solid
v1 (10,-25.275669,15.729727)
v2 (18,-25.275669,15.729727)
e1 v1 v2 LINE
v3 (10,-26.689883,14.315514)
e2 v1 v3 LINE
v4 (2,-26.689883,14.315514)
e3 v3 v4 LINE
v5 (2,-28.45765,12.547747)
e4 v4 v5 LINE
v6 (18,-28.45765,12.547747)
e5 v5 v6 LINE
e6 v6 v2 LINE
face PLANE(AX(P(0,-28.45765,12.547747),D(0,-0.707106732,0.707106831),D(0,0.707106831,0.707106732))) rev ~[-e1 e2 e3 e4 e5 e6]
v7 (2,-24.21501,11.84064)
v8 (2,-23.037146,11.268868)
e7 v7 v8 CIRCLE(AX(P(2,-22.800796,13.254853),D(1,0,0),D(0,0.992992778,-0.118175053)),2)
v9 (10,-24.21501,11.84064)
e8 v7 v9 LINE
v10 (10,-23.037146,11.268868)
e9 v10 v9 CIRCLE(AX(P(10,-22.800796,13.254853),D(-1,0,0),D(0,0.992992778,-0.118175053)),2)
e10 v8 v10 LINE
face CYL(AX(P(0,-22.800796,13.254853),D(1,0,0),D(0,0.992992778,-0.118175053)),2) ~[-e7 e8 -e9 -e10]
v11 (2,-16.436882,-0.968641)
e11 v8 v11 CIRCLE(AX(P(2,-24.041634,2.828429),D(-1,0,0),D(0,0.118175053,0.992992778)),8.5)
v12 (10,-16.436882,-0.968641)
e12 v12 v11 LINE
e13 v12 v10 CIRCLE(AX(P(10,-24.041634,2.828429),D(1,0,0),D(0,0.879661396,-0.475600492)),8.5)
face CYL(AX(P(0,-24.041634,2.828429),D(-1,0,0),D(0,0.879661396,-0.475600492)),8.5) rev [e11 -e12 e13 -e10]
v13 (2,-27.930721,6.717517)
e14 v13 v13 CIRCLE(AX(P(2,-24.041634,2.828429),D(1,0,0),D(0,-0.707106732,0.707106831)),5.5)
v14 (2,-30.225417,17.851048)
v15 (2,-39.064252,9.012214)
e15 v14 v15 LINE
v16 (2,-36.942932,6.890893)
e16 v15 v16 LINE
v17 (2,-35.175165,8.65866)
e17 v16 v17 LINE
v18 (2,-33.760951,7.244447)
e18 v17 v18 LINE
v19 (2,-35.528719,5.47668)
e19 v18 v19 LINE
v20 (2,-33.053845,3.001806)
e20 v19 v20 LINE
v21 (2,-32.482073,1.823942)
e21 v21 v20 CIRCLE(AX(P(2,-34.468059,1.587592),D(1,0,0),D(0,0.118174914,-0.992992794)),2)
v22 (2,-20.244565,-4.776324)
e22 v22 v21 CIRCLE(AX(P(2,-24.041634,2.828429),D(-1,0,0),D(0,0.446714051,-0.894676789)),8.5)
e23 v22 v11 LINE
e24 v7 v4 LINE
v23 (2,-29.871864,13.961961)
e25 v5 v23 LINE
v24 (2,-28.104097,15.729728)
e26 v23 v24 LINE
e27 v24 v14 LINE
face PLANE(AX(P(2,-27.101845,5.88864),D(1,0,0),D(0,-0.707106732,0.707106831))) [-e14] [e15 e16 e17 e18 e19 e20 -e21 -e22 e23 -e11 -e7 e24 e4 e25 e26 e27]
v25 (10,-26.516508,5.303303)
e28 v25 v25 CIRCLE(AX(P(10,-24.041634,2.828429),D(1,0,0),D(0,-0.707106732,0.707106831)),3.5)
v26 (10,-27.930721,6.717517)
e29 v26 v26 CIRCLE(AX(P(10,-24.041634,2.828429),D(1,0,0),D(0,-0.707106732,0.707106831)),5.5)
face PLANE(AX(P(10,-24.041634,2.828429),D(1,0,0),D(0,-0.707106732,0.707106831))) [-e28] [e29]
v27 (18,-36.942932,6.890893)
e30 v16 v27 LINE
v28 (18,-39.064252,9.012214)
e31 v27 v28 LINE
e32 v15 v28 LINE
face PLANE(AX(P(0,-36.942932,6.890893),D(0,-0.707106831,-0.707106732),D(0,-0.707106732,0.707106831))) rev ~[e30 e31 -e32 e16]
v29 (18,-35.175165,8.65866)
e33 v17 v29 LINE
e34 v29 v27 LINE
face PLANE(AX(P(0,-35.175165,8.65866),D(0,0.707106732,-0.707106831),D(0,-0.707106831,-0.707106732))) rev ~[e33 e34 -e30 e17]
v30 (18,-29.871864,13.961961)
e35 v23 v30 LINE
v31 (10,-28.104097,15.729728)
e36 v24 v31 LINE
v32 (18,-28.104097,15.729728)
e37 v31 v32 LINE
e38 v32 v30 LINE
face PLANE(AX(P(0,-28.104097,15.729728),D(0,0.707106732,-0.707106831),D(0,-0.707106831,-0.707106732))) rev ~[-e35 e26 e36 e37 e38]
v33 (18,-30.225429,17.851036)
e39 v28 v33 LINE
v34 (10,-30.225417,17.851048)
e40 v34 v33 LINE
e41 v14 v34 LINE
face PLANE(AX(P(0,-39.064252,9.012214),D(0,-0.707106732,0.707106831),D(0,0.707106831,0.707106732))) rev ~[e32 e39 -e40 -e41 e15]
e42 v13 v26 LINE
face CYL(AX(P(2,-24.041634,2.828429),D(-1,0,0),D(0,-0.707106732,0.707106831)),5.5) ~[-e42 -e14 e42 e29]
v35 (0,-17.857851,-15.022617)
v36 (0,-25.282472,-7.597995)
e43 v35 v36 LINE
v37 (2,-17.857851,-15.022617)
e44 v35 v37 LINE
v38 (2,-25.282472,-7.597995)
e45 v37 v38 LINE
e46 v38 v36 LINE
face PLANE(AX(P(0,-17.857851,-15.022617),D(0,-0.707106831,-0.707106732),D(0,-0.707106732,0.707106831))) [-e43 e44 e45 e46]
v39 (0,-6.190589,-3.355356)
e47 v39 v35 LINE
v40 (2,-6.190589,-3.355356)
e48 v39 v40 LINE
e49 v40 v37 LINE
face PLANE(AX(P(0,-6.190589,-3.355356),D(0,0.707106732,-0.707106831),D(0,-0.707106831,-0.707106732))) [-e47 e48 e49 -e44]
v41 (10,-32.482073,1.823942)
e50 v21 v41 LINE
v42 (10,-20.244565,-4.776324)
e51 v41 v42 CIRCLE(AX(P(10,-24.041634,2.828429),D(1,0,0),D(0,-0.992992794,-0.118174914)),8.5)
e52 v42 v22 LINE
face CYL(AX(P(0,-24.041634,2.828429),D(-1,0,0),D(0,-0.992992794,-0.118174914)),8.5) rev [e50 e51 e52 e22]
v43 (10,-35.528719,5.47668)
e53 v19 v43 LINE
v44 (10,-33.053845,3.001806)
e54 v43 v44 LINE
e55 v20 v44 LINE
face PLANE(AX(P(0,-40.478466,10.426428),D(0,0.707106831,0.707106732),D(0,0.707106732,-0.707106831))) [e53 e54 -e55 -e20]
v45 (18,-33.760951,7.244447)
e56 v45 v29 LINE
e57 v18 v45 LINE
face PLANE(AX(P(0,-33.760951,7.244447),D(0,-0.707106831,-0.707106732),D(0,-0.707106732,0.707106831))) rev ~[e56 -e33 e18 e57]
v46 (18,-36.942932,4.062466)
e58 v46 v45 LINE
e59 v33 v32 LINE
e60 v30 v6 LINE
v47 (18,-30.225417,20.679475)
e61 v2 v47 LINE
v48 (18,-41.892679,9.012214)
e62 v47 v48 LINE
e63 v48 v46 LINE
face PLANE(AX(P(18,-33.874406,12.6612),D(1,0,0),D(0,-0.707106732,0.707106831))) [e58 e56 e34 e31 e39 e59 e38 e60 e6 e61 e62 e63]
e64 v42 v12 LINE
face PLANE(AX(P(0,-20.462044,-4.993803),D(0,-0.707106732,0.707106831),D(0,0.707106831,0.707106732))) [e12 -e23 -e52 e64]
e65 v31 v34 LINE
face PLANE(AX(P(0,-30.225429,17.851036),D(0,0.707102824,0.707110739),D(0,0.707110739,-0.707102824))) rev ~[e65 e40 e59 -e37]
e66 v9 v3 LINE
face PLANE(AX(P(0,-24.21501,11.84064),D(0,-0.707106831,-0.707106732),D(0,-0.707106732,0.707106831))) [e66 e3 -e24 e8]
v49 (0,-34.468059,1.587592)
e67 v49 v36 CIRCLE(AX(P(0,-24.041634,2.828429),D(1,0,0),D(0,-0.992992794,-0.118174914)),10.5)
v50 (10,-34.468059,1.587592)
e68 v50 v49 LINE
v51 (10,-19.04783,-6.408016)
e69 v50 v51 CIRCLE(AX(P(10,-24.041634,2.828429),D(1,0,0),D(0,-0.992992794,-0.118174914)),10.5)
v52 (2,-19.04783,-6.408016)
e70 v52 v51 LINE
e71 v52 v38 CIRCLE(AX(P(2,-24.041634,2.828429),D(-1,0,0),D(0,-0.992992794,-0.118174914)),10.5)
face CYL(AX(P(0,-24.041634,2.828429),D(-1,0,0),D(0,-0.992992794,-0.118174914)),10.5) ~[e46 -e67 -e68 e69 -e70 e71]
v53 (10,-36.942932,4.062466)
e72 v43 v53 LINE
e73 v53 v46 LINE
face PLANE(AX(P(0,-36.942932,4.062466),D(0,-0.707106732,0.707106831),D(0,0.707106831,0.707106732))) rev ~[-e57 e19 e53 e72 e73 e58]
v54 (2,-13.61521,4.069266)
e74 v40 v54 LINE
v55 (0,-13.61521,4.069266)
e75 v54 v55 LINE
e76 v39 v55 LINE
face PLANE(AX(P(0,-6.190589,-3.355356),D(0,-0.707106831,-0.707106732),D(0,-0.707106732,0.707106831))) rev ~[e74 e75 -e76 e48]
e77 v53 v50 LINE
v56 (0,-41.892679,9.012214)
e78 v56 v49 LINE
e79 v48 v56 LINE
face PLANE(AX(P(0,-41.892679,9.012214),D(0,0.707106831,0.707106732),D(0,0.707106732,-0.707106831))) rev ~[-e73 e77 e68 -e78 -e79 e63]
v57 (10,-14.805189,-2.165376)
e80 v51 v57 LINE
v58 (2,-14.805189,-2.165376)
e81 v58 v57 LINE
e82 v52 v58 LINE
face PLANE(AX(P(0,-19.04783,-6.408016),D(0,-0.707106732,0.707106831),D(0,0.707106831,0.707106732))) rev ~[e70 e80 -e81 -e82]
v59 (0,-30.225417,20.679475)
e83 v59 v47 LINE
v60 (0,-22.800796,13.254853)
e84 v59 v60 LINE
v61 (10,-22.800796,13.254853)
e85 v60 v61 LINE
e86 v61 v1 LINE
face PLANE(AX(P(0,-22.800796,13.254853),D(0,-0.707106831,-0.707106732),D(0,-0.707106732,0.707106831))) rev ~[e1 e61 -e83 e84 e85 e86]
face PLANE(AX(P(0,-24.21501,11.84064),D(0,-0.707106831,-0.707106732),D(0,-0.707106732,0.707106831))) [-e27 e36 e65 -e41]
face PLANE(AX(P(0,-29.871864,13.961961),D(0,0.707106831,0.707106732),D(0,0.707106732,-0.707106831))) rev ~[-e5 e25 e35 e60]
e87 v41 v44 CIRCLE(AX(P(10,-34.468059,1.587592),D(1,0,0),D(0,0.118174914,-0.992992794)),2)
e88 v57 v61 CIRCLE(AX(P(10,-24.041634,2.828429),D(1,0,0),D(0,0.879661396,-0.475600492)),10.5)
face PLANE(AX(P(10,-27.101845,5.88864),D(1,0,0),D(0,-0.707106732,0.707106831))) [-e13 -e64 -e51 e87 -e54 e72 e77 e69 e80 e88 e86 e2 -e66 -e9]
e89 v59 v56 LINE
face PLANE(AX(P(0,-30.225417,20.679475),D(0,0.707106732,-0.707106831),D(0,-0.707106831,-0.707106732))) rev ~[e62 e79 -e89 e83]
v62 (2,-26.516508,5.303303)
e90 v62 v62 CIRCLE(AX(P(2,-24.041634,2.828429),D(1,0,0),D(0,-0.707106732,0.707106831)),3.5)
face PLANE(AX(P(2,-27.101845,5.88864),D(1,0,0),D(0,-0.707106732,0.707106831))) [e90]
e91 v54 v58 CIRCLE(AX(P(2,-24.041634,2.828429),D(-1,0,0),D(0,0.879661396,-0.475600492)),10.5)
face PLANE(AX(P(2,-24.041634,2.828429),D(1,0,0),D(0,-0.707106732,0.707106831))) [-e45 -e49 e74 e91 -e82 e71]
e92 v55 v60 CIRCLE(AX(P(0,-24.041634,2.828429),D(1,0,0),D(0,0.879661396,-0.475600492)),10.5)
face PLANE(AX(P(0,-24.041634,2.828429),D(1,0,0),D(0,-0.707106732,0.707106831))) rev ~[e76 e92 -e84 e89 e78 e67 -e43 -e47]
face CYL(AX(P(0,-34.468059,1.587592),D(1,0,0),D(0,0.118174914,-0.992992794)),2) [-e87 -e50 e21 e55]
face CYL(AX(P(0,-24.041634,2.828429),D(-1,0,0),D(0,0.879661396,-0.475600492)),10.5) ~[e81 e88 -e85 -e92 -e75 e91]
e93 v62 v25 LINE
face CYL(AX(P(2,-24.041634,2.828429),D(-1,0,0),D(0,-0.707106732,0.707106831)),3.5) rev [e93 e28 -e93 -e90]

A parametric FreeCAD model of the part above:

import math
import FreeCAD as App
import Part
import Sketcher
Q = App.Units.Quantity


def faces_at(feature, points):
    """Names of the faces that lie closest to the given points."""
    faces = feature.Shape.Faces
    near = lambda p: min(range(len(faces)), key=lambda i: faces[i].distToShape(Part.Vertex(*p))[0])
    return sorted({f"Face{near(p) + 1}" for p in points})


def add_polygon(sketch, points):
    """Adds a closed chain of lines whose ends are joined by coincident constraints."""
    first, n = sketch.GeometryCount, len(points)
    for a, b in zip(points, points[1:] + points[:1]):
        sketch.addGeometry(Part.LineSegment(App.Vector(*a, 0), App.Vector(*b, 0)), False)
    for i in range(n):
        sketch.addConstraint(Sketcher.Constraint("Coincident", first + i, 2, first + (i + 1) % n, 1))

doc = App.newDocument("Part")
body = doc.addObject("PartDesign::Body", "Body")

# Sketch on YZ plane
sketch1 = body.newObject("Sketcher::SketchObject", "Sketch")
sketch1.AttachmentSupport = (doc.getObject("YZ_Plane"), [""])
sketch1.MapMode = "FlatFace"
sketch1.addGeometry(Part.ArcOfCircle(Part.Circle(App.Vector(0, 0, 0), App.Vector(0, 0, 1), 11), math.radians(52), math.radians(163)), False)
sketch1.addGeometry(Part.LineSegment(App.Vector(-10, 3, 0), App.Vector(-10, -3, 0)), False)
sketch1.addGeometry(Part.ArcOfCircle(Part.Circle(App.Vector(0, 0, 0), App.Vector(0, 0, 1), 11), math.radians(-163), math.radians(-52)), False)
sketch1.addGeometry(Part.LineSegment(App.Vector(6, -8, 0), App.Vector(17, -8, 0)), False)
sketch1.addGeometry(Part.LineSegment(App.Vector(17, -8, 0), App.Vector(17, 8, 0)), False)
sketch1.addGeometry(Part.LineSegment(App.Vector(17, 8, 0), App.Vector(6, 8, 0)), False)
sketch1.addConstraint(Sketcher.Constraint("Coincident", 0, 2, 1, 1))
sketch1.addConstraint(Sketcher.Constraint("Coincident", 1, 2, 2, 1))
sketch1.addConstraint(Sketcher.Constraint("Coincident", 2, 2, 3, 1))
sketch1.addConstraint(Sketcher.Constraint("Coincident", 3, 2, 4, 1))
sketch1.addConstraint(Sketcher.Constraint("Coincident", 4, 2, 5, 1))
sketch1.addConstraint(Sketcher.Constraint("Coincident", 5, 2, 0, 1))
sketch1.addConstraint(Sketcher.Constraint("Vertical", 1))
sketch1.addConstraint(Sketcher.Constraint("Horizontal", 3))
sketch1.addConstraint(Sketcher.Constraint("Vertical", 4))
sketch1.addConstraint(Sketcher.Constraint("Horizontal", 5))
sketch1.addConstraint(Sketcher.Constraint("Coincident", 0, 3, -1, 1))
sketch1.addConstraint(Sketcher.Constraint("Coincident", 2, 3, -1, 1))
sketch1.addConstraint(Sketcher.Constraint("Equal", 0, 2))
sketch1.addConstraint(Sketcher.Constraint("Vertical", 2, 2, 5, 2))
sketch1.addConstraint(Sketcher.Constraint("Radius", 0, Q("10.5 mm")))
sketch1.addConstraint(Sketcher.Constraint("DistanceY", 1, 2, 1, 1, Q("6 mm")))
sketch1.addConstraint(Sketcher.Constraint("DistanceX", 3, 1, 3, 2, Q("10.5 mm")))
sketch1.addConstraint(Sketcher.Constraint("DistanceY", 4, 1, 4, 2, Q("16.5 mm")))
pad1 = body.newObject("PartDesign::Pad", "Pad")
pad1.Profile = sketch1
pad1.Length = 10
doc.recompute()

thickness = body.newObject("PartDesign::Thickness", "Thickness")
thickness.Base = (pad1, faces_at(pad1, [(10, 3.466, 0)]))
thickness.Value = 2
thickness.Reversed = True
thickness.Join = "Arc"

# Sketch on YZ plane
sketch2 = body.newObject("Sketcher::SketchObject", "Sketch001")
sketch2.AttachmentSupport = (doc.getObject("YZ_Plane"), [""])
sketch2.MapMode = "FlatFace"
add_polygon(sketch2, [(17, 8.2), (10, 8.2), (10, 3.8), (12, 3.8), (12, 6.2), (15, 6.2), (15, -6.2), (12, -6.2), (12, -3.8), (10, -3.8), (10, -8.2), (17, -8.2)])  # lines 0-11
sketch2.addConstraint(Sketcher.Constraint("Horizontal", 0))
sketch2.addConstraint(Sketcher.Constraint("Vertical", 1))
sketch2.addConstraint(Sketcher.Constraint("Horizontal", 2))
sketch2.addConstraint(Sketcher.Constraint("Vertical", 3))
sketch2.addConstraint(Sketcher.Constraint("Horizontal", 4))
sketch2.addConstraint(Sketcher.Constraint("Vertical", 5))
sketch2.addConstraint(Sketcher.Constraint("Vertical", 7))
sketch2.addConstraint(Sketcher.Constraint("Horizontal", 8))
sketch2.addConstraint(Sketcher.Constraint("Vertical", 9))
sketch2.addConstraint(Sketcher.Constraint("Horizontal", 10))
sketch2.addConstraint(Sketcher.Constraint("Vertical", 11))
sketch2.addConstraint(Sketcher.Constraint("Symmetric", 3, 2, 6, 2, -1))
sketch2.addConstraint(Sketcher.Constraint("Symmetric", 1, 2, 8, 2, -1))
sketch2.addConstraint(Sketcher.Constraint("Equal", 1, 9))
sketch2.addConstraint(Sketcher.Constraint("DistanceX", 0, 2, 0, 1, Q("7 mm")))
sketch2.addConstraint(Sketcher.Constraint("DistanceX", 2, 1, 2, 2, Q("2 mm")))
sketch2.addConstraint(Sketcher.Constraint("DistanceX", 4, 1, 4, 2, Q("3 mm")))
sketch2.addConstraint(Sketcher.Constraint("DistanceY", 1, 2, 1, 1, Q("4.5 mm")))
sketch2.addConstraint(Sketcher.Constraint("DistanceY", 3, 1, 3, 2, Q("2.5 mm")))
sketch2.addConstraint(Sketcher.Constraint("DistanceY", 11, 1, 11, 2, Q("16.5 mm")))
sketch2.addConstraint(Sketcher.Constraint("DistanceY", 5, 2, 5, 1, Q("12.499983 mm")))
sketch2.addConstraint(Sketcher.Constraint("DistanceX", -1, 1, 0, 2, Q("9.995191 mm")))
pad2 = body.newObject("PartDesign::Pad", "Pad001")
pad2.Profile = sketch2
pad2.Length = 18

# Sketch on YZ plane
sketch3 = body.newObject("Sketcher::SketchObject", "Sketch002")
sketch3.AttachmentSupport = (doc.getObject("YZ_Plane"), [""])
sketch3.MapMode = "FlatFace"
sketch3.AttachmentOffset = App.Placement(App.Vector(0, 0, 2), App.Rotation())
sketch3.addGeometry(Part.Circle(App.Vector(0, 0, 0), App.Vector(0, 0, 1), 5.5), False)
sketch3.addGeometry(Part.Circle(App.Vector(0, 0, 0), App.Vector(0, 0, 1), 3.5), False)
sketch3.addConstraint(Sketcher.Constraint("Coincident", 0, 3, -1, 1))
sketch3.addConstraint(Sketcher.Constraint("Coincident", 1, 3, -1, 1))
sketch3.addConstraint(Sketcher.Constraint("Diameter", 0, Q("11 mm")))
sketch3.addConstraint(Sketcher.Constraint("Diameter", 1, Q("7 mm")))
pad3 = body.newObject("PartDesign::Pad", "Pad002")
pad3.Profile = sketch3
pad3.Length = 8

# Sketch on YZ plane
sketch4 = body.newObject("Sketcher::SketchObject", "Sketch003")
sketch4.AttachmentSupport = (doc.getObject("YZ_Plane"), [""])
sketch4.MapMode = "FlatFace"
add_polygon(sketch4, [(-17, 8), (-17, -8), (17, -8), (17, 8)])  # lines 0-3
sketch4.addConstraint(Sketcher.Constraint("Vertical", 0))
sketch4.addConstraint(Sketcher.Constraint("Horizontal", 1))
sketch4.addConstraint(Sketcher.Constraint("Vertical", 2))
sketch4.addConstraint(Sketcher.Constraint("Horizontal", 3))
sketch4.addConstraint(Sketcher.Constraint("Symmetric", 0, 2, 2, 2, -1, 1))
sketch4.addConstraint(Sketcher.Constraint("DistanceY", 0, 2, 0, 1, Q("16.5 mm")))
sketch4.addConstraint(Sketcher.Constraint("DistanceX", 1, 1, 1, 2, Q("33.990382 mm")))
pad4 = body.newObject("PartDesign::Pad", "Pad003")
pad4.Profile = sketch4
pad4.Length = 2
body2 = doc.addObject("PartDesign::Body", "Body001")
doc.recompute()

body.Placement = App.Placement(App.Vector(0, -24.041634, 2.828429), App.Rotation(App.Vector(1, 0, 0), 134.999996))
boolean = body2.newObject("PartDesign::Boolean", "Boolean")
boolean.Type = "Fuse"
boolean.addObjects([body])

doc.recompute()
